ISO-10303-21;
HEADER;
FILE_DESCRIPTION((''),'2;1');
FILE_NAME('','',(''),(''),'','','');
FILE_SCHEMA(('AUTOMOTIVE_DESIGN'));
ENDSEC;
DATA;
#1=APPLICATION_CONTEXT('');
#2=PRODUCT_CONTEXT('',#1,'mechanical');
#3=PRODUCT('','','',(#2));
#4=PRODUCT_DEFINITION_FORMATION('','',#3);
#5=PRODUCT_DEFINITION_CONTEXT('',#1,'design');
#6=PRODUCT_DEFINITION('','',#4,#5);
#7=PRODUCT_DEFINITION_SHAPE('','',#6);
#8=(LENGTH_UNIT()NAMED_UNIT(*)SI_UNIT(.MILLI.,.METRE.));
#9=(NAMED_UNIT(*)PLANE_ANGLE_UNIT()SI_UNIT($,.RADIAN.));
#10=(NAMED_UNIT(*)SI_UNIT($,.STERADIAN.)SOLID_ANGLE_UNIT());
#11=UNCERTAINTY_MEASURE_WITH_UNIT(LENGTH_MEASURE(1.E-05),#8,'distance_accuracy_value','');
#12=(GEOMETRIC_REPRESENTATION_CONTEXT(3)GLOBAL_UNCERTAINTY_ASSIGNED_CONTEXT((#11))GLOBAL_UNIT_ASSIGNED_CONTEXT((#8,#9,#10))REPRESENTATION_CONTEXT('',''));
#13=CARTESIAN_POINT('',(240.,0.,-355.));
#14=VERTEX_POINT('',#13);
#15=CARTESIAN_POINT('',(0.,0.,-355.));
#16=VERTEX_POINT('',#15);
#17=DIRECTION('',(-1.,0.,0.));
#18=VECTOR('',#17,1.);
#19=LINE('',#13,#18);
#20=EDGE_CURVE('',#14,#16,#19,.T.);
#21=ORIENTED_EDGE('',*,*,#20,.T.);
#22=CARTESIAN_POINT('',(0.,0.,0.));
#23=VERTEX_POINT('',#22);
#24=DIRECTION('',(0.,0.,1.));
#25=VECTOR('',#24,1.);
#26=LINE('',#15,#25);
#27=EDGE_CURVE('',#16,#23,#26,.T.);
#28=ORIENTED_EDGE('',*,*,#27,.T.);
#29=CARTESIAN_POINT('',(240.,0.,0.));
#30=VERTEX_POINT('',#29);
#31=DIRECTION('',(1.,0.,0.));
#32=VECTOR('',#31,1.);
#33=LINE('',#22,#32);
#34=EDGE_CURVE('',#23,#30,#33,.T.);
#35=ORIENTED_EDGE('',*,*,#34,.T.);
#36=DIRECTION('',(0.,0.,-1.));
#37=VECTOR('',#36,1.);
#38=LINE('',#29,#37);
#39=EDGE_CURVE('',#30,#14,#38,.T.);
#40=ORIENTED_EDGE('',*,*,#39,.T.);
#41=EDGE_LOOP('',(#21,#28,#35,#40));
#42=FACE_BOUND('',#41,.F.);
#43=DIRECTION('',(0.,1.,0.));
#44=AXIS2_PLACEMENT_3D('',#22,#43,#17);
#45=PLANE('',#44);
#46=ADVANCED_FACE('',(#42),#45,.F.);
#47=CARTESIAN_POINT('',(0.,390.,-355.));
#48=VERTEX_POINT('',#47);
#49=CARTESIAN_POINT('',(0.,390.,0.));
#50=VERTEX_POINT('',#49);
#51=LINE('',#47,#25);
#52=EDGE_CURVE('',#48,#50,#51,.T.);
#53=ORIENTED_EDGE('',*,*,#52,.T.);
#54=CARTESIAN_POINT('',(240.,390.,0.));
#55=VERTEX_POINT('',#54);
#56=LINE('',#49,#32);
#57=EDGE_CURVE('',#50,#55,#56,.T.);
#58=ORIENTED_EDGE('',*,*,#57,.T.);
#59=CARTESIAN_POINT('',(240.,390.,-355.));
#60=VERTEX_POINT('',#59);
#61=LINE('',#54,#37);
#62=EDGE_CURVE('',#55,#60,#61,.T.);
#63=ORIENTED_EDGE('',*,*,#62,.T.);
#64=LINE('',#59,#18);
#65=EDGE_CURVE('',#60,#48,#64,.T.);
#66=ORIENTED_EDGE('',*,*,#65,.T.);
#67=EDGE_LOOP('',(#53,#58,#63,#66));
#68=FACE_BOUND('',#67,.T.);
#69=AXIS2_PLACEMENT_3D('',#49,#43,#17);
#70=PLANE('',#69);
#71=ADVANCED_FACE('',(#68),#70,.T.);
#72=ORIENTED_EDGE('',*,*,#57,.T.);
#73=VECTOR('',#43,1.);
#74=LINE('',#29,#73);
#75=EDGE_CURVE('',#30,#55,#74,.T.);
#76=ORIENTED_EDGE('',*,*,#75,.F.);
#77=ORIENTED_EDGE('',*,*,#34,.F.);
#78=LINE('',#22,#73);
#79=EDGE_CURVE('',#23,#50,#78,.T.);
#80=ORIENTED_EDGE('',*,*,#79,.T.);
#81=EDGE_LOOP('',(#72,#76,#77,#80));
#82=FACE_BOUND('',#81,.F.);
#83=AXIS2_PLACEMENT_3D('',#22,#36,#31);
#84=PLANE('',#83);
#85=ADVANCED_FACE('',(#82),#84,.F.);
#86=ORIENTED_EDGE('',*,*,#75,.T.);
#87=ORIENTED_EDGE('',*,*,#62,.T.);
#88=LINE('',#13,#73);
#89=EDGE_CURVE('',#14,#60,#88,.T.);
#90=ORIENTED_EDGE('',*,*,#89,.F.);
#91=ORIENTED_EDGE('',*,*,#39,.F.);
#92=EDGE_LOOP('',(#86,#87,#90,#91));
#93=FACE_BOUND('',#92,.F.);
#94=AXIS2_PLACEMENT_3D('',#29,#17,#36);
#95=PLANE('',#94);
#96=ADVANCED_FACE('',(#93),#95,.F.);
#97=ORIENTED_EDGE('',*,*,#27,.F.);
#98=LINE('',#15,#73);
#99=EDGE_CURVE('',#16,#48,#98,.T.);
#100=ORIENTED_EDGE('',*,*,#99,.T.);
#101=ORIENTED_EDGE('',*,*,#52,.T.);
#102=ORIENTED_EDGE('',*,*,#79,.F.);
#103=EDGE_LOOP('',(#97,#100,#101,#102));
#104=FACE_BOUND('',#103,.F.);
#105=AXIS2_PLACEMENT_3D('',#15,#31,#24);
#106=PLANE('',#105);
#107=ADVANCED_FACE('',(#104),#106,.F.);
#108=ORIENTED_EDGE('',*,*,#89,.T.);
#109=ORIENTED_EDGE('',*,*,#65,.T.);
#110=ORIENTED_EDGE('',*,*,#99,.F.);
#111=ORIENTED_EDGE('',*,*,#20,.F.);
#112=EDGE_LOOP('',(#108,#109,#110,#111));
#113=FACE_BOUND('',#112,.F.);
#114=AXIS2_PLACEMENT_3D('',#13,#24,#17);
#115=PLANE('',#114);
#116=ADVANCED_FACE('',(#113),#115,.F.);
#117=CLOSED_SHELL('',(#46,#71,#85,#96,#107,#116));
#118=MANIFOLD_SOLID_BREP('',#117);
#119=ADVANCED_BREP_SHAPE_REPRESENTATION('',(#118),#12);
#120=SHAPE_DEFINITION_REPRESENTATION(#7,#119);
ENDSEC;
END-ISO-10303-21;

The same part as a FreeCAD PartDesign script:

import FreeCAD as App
import Part
import Sketcher
from FreeCAD import Vector


def add_polygon(sketch, points):
    """Adds a closed chain of lines whose ends are joined by coincident constraints."""
    first, n = sketch.GeometryCount, len(points)
    for a, b in zip(points, points[1:] + points[:1]):
        sketch.addGeometry(Part.LineSegment(App.Vector(*a, 0), App.Vector(*b, 0)), False)
    for i in range(n):
        sketch.addConstraint(Sketcher.Constraint("Coincident", first + i, 2, first + (i + 1) % n, 1))

doc = App.newDocument("Part")
body = doc.addObject("PartDesign::Body", "Body")

# Sketch on XZ plane
sketch1 = body.newObject("Sketcher::SketchObject", "Sketch")
sketch1.AttachmentSupport = (doc.getObject("XZ_Plane"), [""])
sketch1.MapMode = "FlatFace"
add_polygon(sketch1, [(0, -355), (0, 0), (240, 0), (240, -355)])  # lines 0-3
sketch1.addConstraint(Sketcher.Constraint("Vertical", 0))
sketch1.addConstraint(Sketcher.Constraint("Horizontal", 1))
sketch1.addConstraint(Sketcher.Constraint("Vertical", 2))
sketch1.addConstraint(Sketcher.Constraint("Horizontal", 3))
sketch1.addConstraint(Sketcher.Constraint("Coincident", 0, 2, -1, 1))
sketch1.addConstraint(Sketcher.Constraint("DistanceX", 1, 1, 1, 2, 240.0))
sketch1.addConstraint(Sketcher.Constraint("DistanceY", 0, 1, 0, 2, 355.0))
pad1 = body.newObject("PartDesign::Pad", "Pad")
pad1.Profile = sketch1
pad1.Length = 390
pad1.Reversed = True

doc.recompute()
